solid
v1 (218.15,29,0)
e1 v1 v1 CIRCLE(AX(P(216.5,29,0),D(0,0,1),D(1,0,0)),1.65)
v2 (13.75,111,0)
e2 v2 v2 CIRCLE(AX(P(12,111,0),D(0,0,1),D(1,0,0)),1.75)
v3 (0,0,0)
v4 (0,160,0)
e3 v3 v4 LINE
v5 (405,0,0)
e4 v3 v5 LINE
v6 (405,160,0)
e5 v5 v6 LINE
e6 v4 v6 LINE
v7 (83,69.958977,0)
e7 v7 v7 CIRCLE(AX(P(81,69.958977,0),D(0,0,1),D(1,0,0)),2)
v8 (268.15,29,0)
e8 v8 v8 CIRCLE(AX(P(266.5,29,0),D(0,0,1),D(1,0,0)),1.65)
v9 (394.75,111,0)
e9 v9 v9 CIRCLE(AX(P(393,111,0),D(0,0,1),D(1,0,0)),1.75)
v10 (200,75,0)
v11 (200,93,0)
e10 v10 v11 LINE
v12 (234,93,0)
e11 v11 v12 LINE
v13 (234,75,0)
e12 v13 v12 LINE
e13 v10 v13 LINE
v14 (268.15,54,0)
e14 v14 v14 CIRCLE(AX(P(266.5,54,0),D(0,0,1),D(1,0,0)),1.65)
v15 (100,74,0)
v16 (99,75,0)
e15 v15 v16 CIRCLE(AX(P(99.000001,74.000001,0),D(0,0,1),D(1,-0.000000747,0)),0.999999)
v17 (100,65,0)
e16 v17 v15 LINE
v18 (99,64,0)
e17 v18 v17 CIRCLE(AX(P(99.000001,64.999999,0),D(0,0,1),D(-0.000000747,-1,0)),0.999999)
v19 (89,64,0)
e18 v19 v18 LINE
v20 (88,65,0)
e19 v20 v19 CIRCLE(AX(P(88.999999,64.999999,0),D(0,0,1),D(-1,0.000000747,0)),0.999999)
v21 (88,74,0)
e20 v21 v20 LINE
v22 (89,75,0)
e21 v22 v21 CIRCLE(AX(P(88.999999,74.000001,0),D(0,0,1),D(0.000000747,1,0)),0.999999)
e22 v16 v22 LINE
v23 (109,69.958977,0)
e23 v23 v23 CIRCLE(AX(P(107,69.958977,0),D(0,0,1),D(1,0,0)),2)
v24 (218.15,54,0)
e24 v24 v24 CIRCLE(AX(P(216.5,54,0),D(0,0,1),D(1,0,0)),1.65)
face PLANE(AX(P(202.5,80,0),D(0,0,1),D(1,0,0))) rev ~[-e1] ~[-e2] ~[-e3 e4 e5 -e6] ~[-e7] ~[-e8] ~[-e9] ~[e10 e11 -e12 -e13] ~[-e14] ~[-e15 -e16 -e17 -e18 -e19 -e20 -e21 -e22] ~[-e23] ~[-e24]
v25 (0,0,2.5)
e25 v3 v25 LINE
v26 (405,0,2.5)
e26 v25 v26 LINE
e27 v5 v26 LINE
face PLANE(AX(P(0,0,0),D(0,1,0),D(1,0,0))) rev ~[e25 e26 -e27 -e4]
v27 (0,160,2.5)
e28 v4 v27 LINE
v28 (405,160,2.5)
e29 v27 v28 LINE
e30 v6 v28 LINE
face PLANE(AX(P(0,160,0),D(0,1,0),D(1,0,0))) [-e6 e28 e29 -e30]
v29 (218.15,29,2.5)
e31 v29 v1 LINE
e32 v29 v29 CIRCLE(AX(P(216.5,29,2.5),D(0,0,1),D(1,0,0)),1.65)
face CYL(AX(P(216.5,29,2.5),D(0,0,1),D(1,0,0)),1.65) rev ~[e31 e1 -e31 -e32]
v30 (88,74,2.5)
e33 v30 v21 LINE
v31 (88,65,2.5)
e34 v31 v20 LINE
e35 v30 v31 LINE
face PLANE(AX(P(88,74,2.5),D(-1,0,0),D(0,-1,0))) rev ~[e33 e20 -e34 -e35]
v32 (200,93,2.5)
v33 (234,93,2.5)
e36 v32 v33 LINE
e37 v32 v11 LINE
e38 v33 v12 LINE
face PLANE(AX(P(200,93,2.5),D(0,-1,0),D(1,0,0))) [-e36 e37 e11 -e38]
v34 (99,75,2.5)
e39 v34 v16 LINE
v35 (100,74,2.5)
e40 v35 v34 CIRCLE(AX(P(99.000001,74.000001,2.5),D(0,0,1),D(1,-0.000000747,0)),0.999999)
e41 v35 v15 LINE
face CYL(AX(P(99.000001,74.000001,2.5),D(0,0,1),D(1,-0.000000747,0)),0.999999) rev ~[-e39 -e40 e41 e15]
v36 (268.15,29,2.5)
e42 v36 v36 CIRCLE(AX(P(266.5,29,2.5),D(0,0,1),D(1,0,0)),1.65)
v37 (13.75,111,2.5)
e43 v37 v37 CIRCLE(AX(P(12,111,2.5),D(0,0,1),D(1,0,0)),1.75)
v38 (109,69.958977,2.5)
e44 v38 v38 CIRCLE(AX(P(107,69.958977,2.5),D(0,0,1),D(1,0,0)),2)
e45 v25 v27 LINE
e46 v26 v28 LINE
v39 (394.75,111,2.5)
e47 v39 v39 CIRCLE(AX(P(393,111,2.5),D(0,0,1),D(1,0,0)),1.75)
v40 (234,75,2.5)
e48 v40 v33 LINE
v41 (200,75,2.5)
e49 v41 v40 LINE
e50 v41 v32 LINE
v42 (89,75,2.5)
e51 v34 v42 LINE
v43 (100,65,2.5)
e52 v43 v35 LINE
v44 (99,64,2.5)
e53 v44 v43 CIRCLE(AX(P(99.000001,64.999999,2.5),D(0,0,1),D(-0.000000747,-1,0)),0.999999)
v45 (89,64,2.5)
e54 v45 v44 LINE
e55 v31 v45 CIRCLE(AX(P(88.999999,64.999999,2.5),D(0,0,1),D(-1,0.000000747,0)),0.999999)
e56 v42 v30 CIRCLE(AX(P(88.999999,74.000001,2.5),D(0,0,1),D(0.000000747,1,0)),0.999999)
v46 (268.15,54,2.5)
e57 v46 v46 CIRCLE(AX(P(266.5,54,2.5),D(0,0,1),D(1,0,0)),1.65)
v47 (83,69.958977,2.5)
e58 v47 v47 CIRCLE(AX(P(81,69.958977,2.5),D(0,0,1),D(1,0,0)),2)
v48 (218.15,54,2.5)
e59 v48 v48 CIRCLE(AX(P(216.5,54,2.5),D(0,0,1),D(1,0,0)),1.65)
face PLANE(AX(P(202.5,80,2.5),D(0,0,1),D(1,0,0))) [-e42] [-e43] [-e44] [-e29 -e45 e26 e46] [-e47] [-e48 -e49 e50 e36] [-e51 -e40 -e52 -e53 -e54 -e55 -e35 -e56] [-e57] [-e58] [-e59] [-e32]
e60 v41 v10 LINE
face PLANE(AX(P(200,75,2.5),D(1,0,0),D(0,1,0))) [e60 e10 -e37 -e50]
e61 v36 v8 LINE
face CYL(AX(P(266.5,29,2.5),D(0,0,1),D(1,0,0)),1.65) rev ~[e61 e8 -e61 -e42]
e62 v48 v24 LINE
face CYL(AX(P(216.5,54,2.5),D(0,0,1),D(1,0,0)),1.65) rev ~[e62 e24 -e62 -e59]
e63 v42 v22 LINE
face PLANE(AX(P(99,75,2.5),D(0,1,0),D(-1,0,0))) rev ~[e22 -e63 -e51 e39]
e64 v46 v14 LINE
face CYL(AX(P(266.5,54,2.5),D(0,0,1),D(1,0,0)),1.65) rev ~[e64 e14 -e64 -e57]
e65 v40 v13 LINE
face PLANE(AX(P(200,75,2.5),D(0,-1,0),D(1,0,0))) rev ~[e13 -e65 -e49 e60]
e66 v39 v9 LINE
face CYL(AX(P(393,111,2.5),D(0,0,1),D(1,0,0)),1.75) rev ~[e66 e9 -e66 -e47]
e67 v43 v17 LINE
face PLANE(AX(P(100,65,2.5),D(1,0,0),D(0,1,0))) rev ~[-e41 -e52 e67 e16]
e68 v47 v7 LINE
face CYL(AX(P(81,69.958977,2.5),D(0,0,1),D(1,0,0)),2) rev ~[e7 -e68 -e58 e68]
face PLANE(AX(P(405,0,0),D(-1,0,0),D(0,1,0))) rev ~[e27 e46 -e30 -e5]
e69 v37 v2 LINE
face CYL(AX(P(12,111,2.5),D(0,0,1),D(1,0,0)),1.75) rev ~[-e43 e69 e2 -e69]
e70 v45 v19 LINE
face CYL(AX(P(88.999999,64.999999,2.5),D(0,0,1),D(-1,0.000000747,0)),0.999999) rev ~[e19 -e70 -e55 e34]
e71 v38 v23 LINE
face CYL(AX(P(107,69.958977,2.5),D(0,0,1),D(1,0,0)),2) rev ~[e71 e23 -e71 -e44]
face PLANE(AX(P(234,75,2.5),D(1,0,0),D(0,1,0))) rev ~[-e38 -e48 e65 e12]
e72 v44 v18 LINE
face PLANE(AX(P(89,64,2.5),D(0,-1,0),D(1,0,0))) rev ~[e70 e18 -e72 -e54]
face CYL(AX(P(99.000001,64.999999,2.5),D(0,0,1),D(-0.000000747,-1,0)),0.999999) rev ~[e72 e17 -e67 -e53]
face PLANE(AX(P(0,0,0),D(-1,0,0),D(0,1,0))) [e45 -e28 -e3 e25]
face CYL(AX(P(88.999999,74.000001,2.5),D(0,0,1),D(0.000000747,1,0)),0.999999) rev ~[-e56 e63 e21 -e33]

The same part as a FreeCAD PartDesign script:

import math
import FreeCAD as App
import Part
import Sketcher

V = App.Vector


def add_polygon(sketch, points):
    """Adds a closed chain of lines whose ends are joined by coincident constraints."""
    first, n = sketch.GeometryCount, len(points)
    for a, b in zip(points, points[1:] + points[:1]):
        sketch.addGeometry(Part.LineSegment(App.Vector(*a, 0), App.Vector(*b, 0)), False)
    for i in range(n):
        sketch.addConstraint(Sketcher.Constraint("Coincident", first + i, 2, first + (i + 1) % n, 1))

doc = App.newDocument("Part")
body = doc.addObject("PartDesign::Body", "Body")

# Sketch on XY plane
sketch1 = doc.addObject("Sketcher::SketchObject", "Sketch")
body.addObject(sketch1)
sketch1.AttachmentSupport = (doc.XY_Plane, [""])
sketch1.MapMode = "FlatFace"
add_polygon(sketch1, [(0, 160), (0, 0), (405, 0), (405, 160)])  # lines 0-3
sketch1.addConstraint([
    Sketcher.Constraint("Vertical", 0),
    Sketcher.Constraint("Horizontal", 1),
    Sketcher.Constraint("Vertical", 2),
    Sketcher.Constraint("Horizontal", 3),
    Sketcher.Constraint("Coincident", 0, 2, -1, 1),
    Sketcher.Constraint("DistanceX", 1, 1, 1, 2, 405.0),
    Sketcher.Constraint("DistanceY", 0, 2, 0, 1, 160.0),
])
pad1 = doc.addObject("PartDesign::Pad", "Pad")
body.addObject(pad1)
pad1.Profile = sketch1
pad1.Length = 2.5

# Sketch on XY plane
sketch2 = doc.addObject("Sketcher::SketchObject", "Sketch001")
body.addObject(sketch2)
sketch2.AttachmentSupport = (doc.XY_Plane, [""])
sketch2.MapMode = "FlatFace"
sketch2.AttachmentOffset = App.Placement(V(0, 0, 2.5), App.Rotation())
sketch2.addGeometry([
    Part.LineSegment(V(99, 75, 0), V(89, 75, 0)),  # 0
    Part.ArcOfCircle(Part.Circle(V(89, 74, 0), V(0, 0, 1), 1), math.radians(90), math.radians(180)),  # 1
    Part.LineSegment(V(88, 74, 0), V(88, 65, 0)),  # 2
    Part.ArcOfCircle(Part.Circle(V(89, 65, 0), V(0, 0, 1), 1), math.radians(180), math.radians(270)),  # 3
    Part.LineSegment(V(89, 64, 0), V(99, 64, 0)),  # 4
    Part.ArcOfCircle(Part.Circle(V(99, 65, 0), V(0, 0, 1), 1), math.radians(-90), math.radians(0)),  # 5
    Part.LineSegment(V(100, 65, 0), V(100, 74, 0)),  # 6
    Part.ArcOfCircle(Part.Circle(V(99, 74, 0), V(0, 0, 1), 1), math.radians(0), math.radians(90)),  # 7
    Part.Circle(V(81, 70, 0), V(0, 0, 1), 2),  # 8
    Part.Circle(V(107, 70, 0), V(0, 0, 1), 2),  # 9
], False)
sketch2.addConstraint([
    Sketcher.Constraint("Tangent", 0, 2, 1, 1),
    Sketcher.Constraint("Tangent", 1, 2, 2, 1),
    Sketcher.Constraint("Tangent", 2, 2, 3, 1),
    Sketcher.Constraint("Tangent", 3, 2, 4, 1),
    Sketcher.Constraint("Tangent", 4, 2, 5, 1),
    Sketcher.Constraint("Tangent", 5, 2, 6, 1),
    Sketcher.Constraint("Tangent", 6, 2, 7, 1),
    Sketcher.Constraint("Tangent", 7, 2, 0, 1),
    Sketcher.Constraint("Horizontal", 0),
    Sketcher.Constraint("Vertical", 2),
    Sketcher.Constraint("Horizontal", 4),
    Sketcher.Constraint("Vertical", 6),
    Sketcher.Constraint("Equal", 1, 3),
    Sketcher.Constraint("Equal", 3, 5),
    Sketcher.Constraint("Equal", 5, 7),
    Sketcher.Constraint("Equal", 8, 9),
    Sketcher.Constraint("Horizontal", 8, 3, 9, 3),
    Sketcher.Constraint("Diameter", 8, 4.0),
    Sketcher.Constraint("Radius", 1, 0.999999),
    Sketcher.Constraint("DistanceX", 0, 2, 0, 1, 10.0),
    Sketcher.Constraint("DistanceY", 2, 2, 2, 1, 9.0),
    Sketcher.Constraint("DistanceX", -1, 1, 1, 3, 88.999999),
    Sketcher.Constraint("DistanceY", -1, 1, 1, 3, 74.000001),
    Sketcher.Constraint("DistanceX", -1, 1, 8, 3, 81.0),
    Sketcher.Constraint("DistanceX", -1, 1, 9, 3, 107.0),
    Sketcher.Constraint("DistanceY", -1, 1, 8, 3, 69.958977),
])
pocket1 = doc.addObject("PartDesign::Pocket", "Pocket")
body.addObject(pocket1)
pocket1.Profile = sketch2
pocket1.Length = 25

# Sketch on XY plane
sketch3 = doc.addObject("Sketcher::SketchObject", "Sketch002")
body.addObject(sketch3)
sketch3.AttachmentSupport = (doc.XY_Plane, [""])
sketch3.MapMode = "FlatFace"
sketch3.AttachmentOffset = App.Placement(V(0, 0, 2.5), App.Rotation())
add_polygon(sketch3, [(200, 93), (200, 75), (234, 75), (234, 93)])  # lines 0-3
sketch3.addGeometry(Part.Circle(V(216.5, 54, 0), V(0, 0, 1), 1.6), False)  # 4
sketch3.addGeometry(Part.Circle(V(266.5, 54, 0), V(0, 0, 1), 1.6), False)  # 5
sketch3.addGeometry(Part.Circle(V(266.5, 29, 0), V(0, 0, 1), 1.6), False)  # 6
sketch3.addGeometry(Part.Circle(V(216.5, 29, 0), V(0, 0, 1), 1.6), False)  # 7
sketch3.addConstraint([
    Sketcher.Constraint("Vertical", 0),
    Sketcher.Constraint("Horizontal", 1),
    Sketcher.Constraint("Vertical", 2),
    Sketcher.Constraint("Horizontal", 3),
    Sketcher.Constraint("Equal", 4, 5),
    Sketcher.Constraint("Equal", 5, 6),
    Sketcher.Constraint("Equal", 6, 7),
    Sketcher.Constraint("Horizontal", 4, 3, 5, 3),
    Sketcher.Constraint("Horizontal", 6, 3, 7, 3),
    Sketcher.Constraint("Vertical", 5, 3, 6, 3),
    Sketcher.Constraint("Vertical", 4, 3, 7, 3),
    Sketcher.Constraint("Diameter", 4, 3.3),
    Sketcher.Constraint("DistanceX", 1, 1, 1, 2, 34.0),
    Sketcher.Constraint("DistanceY", 0, 2, 0, 1, 18.0),
    Sketcher.Constraint("DistanceY", -1, 1, 4, 3, 54.0),
    Sketcher.Constraint("DistanceY", -1, 1, 6, 3, 29.0),
    Sketcher.Constraint("DistanceX", -1, 1, 0, 2, 200.0),
    Sketcher.Constraint("DistanceY", -1, 1, 0, 2, 75.0),
    Sketcher.Constraint("DistanceX", 4, 3, 5, 3, 50.0),
    Sketcher.Constraint("DistanceX", -1, 1, 4, 3, 216.5),
])
pocket2 = doc.addObject("PartDesign::Pocket", "Pocket001")
body.addObject(pocket2)
pocket2.Profile = sketch3
pocket2.Length = 25

# Sketch on XY plane
sketch4 = doc.addObject("Sketcher::SketchObject", "Sketch003")
body.addObject(sketch4)
sketch4.AttachmentSupport = (doc.XY_Plane, [""])
sketch4.MapMode = "FlatFace"
sketch4.AttachmentOffset = App.Placement(V(0, 0, 2.5), App.Rotation())
sketch4.addGeometry([
    Part.Circle(V(12, 111, 0), V(0, 0, 1), 1.8),
    Part.Circle(V(393, 111, 0), V(0, 0, 1), 1.8),
], False)
sketch4.addConstraint([
    Sketcher.Constraint("Equal", 0, 1),
    Sketcher.Constraint("Horizontal", 0, 3, 1, 3),
    Sketcher.Constraint("Diameter", 0, 3.5),
    Sketcher.Constraint("DistanceX", -1, 1, 0, 3, 12.0),
    Sketcher.Constraint("DistanceY", -1, 1, 0, 3, 111.0),
    Sketcher.Constraint("DistanceX", -1, 1, 1, 3, 393.0),
])
pocket3 = doc.addObject("PartDesign::Pocket", "Pocket002")
body.addObject(pocket3)
pocket3.Profile = sketch4
pocket3.Length = 25

doc.recompute()
